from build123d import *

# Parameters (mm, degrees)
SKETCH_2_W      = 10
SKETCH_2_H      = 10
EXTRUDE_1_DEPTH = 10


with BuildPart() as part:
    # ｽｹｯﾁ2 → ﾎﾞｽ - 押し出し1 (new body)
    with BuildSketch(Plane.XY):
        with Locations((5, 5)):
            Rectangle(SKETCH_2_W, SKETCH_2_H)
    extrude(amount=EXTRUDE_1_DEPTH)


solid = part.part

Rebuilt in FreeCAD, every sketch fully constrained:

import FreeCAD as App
import Part
import Sketcher

V = App.Vector
Q = App.Units.Quantity


def add_polygon(sketch, points):
    """Adds a closed chain of lines whose ends are joined by coincident constraints."""
    first, n = sketch.GeometryCount, len(points)
    for a, b in zip(points, points[1:] + points[:1]):
        sketch.addGeometry(Part.LineSegment(App.Vector(*a, 0), App.Vector(*b, 0)), False)
    for i in range(n):
        sketch.addConstraint(Sketcher.Constraint("Coincident", first + i, 2, first + (i + 1) % n, 1))

doc = App.newDocument("Part")
body = doc.addObject("PartDesign::Body", "Body")

# Sketch on XY plane
sketch1 = body.newObject("Sketcher::SketchObject", "Sketch")
sketch1.AttachmentSupport = (doc.getObject("XY_Plane"), [""])
sketch1.MapMode = "FlatFace"
add_polygon(sketch1, [(0, 10), (0, 0), (10, 0), (10, 10)])  # lines 0-3
sketch1.addConstraint(Sketcher.Constraint("Vertical", 0))
sketch1.addConstraint(Sketcher.Constraint("Horizontal", 1))
sketch1.addConstraint(Sketcher.Constraint("Vertical", 2))
sketch1.addConstraint(Sketcher.Constraint("Horizontal", 3))
sketch1.addConstraint(Sketcher.Constraint("Coincident", 0, 2, -1, 1))
sketch1.addConstraint(Sketcher.Constraint("Equal", 3, 0))
sketch1.addConstraint(Sketcher.Constraint("DistanceX", 1, 1, 1, 2, Q("10 mm")))
pad1 = body.newObject("PartDesign::Pad", "Pad")
pad1.Profile = sketch1
pad1.Length = 10

doc.recompute()
